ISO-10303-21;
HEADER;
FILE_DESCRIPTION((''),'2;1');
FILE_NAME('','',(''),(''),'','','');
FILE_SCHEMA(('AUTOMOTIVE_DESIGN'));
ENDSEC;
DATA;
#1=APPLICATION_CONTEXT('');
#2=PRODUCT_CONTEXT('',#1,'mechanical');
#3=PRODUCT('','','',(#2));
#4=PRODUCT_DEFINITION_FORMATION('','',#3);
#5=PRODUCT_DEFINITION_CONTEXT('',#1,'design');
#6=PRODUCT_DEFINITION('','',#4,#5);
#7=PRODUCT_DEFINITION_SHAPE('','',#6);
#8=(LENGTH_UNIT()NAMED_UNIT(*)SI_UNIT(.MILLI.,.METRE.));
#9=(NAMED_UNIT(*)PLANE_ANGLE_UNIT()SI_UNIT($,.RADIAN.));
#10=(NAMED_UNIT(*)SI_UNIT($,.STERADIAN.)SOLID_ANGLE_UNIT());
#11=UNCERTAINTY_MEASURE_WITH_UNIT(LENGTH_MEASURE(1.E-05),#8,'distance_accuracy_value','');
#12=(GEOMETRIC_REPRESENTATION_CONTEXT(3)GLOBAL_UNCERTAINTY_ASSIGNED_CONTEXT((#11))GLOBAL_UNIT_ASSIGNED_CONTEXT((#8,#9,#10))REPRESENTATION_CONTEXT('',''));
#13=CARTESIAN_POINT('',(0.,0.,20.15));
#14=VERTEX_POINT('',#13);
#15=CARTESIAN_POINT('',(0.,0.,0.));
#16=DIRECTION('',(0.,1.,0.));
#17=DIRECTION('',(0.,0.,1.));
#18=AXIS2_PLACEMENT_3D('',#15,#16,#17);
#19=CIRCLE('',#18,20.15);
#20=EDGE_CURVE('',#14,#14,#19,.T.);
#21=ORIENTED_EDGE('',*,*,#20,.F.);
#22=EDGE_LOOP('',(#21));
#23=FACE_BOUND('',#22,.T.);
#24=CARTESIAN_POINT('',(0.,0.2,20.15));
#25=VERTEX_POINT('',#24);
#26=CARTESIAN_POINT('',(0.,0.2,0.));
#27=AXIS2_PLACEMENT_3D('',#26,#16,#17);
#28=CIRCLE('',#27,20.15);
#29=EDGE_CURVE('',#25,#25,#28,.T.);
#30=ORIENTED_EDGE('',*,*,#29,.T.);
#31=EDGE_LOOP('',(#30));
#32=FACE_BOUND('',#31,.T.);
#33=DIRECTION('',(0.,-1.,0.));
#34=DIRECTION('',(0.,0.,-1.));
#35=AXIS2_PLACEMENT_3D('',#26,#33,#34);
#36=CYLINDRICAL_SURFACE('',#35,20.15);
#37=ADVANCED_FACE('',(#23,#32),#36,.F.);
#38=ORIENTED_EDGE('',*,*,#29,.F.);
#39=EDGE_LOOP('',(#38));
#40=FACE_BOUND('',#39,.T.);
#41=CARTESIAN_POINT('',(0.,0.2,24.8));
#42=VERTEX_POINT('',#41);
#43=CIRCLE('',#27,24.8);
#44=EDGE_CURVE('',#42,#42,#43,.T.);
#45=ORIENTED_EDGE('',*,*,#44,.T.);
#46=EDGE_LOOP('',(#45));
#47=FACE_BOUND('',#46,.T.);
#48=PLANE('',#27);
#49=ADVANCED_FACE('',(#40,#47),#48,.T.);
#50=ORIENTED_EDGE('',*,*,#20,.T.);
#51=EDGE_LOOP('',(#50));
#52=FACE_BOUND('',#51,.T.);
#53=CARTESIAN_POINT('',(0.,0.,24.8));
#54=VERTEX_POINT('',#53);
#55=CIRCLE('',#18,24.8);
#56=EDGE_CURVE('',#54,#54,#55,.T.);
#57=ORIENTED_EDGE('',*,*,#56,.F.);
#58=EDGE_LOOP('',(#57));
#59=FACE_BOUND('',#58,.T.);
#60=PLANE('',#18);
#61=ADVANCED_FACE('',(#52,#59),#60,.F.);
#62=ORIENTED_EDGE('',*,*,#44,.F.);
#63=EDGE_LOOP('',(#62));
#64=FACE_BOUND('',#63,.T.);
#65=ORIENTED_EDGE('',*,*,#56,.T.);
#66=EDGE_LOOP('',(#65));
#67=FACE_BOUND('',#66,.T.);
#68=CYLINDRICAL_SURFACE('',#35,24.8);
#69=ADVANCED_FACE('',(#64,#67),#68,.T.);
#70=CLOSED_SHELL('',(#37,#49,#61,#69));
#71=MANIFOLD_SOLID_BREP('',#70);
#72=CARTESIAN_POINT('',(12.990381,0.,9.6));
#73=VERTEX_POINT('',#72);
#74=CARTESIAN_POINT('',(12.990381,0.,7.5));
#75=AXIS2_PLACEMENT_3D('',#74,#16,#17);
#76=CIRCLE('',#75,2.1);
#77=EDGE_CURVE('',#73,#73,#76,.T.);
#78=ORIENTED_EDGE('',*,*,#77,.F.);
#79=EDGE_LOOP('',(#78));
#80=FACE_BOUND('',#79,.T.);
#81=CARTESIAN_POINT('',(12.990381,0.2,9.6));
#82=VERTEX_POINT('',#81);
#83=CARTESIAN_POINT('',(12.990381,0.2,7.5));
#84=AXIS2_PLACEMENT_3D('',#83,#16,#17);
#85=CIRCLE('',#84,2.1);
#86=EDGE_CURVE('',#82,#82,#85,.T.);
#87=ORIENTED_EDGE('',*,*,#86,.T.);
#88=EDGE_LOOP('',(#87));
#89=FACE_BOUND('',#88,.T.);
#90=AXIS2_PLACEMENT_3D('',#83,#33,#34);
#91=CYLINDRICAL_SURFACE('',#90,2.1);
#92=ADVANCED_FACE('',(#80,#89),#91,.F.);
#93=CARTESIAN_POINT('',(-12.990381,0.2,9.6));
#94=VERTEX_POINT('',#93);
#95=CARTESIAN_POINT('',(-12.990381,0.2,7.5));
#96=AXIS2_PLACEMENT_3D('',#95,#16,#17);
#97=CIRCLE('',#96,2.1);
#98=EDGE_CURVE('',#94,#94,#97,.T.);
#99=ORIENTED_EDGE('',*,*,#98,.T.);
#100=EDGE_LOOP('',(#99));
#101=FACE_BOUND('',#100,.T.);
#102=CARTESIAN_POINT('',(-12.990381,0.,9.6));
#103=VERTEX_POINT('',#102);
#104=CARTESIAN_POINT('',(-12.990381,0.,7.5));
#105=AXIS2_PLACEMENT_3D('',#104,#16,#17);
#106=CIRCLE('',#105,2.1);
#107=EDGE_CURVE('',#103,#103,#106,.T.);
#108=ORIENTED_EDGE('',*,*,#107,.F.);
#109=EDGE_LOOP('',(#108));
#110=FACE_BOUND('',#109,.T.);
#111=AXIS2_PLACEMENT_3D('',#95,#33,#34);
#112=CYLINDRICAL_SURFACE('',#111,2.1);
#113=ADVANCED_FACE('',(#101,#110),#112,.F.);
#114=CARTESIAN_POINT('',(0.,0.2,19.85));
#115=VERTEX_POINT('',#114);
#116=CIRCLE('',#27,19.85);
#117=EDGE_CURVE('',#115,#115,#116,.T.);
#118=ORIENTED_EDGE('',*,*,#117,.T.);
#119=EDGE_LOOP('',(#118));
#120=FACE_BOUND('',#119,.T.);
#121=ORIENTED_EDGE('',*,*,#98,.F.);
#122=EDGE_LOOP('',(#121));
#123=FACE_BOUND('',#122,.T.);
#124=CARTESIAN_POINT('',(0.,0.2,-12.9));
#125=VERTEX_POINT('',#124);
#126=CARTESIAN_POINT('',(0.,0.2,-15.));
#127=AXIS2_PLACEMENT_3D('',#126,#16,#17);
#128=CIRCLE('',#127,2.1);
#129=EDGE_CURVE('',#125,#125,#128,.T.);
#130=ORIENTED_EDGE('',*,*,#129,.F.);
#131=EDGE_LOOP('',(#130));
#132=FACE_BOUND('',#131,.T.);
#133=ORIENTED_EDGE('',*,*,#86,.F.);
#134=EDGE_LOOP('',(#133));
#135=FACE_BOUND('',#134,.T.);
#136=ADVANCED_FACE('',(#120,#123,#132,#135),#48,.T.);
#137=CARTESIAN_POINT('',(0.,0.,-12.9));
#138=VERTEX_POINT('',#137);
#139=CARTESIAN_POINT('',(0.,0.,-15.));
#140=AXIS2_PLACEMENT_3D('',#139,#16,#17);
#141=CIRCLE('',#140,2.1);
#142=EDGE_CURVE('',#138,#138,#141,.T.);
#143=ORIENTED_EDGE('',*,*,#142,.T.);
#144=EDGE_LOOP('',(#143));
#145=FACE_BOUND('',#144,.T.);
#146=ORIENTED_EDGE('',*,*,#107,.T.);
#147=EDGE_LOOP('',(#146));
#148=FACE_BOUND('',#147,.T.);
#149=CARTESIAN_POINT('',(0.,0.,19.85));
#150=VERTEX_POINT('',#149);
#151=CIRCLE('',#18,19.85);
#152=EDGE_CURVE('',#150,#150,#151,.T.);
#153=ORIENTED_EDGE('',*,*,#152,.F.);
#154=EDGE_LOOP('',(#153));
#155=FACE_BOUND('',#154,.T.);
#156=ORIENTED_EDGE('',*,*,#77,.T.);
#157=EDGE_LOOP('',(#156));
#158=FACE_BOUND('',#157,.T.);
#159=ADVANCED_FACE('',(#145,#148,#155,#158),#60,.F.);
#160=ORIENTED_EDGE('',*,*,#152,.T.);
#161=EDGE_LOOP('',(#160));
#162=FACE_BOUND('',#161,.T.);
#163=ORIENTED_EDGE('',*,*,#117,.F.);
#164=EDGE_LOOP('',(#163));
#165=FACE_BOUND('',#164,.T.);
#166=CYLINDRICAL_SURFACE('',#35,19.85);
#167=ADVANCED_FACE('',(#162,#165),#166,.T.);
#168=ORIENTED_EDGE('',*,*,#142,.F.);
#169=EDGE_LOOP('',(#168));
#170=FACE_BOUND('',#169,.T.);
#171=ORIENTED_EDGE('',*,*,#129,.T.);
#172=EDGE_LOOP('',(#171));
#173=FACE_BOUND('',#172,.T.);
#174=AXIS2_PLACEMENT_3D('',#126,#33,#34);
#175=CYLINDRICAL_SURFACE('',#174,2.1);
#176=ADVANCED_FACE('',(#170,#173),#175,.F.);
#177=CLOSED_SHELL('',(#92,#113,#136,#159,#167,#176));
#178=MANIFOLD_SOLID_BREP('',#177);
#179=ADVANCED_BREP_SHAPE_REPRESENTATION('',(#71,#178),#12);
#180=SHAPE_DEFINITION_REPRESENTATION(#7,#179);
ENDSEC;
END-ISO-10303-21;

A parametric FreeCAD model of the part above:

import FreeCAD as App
import Part
import Sketcher
Q = App.Units.Quantity

doc = App.newDocument("Part")
params = doc.addObject("Spreadsheet::Sheet", "Params")
for row, (alias, value) in enumerate([
    ("sketch1_diameter", "49.6 mm"),
    ("sketch1_diameter2", "40.3 mm"),
    ("pad1_length", "0.2 mm"),
    ("sketch2_diameter", "39.7 mm"),
    ("sketch2_diameter2", "4.2 mm"),
    ("pad2_length", "0.2 mm"),
], start=1):
    params.set(f"A{row}", alias)
    params.set(f"B{row}", "=" + value)
    params.setAlias(f"B{row}", alias)

body = doc.addObject("PartDesign::Body", "Body")

# Sketch on XZ plane
sketch1 = doc.addObject("Sketcher::SketchObject", "Sketch")
body.addObject(sketch1)
sketch1.AttachmentSupport = (doc.XZ_Plane, [""])
sketch1.MapMode = "FlatFace"
sketch1.addGeometry(Part.Circle(App.Vector(0, 0, 0), App.Vector(0, 0, 1), 25), False)
sketch1.addGeometry(Part.Circle(App.Vector(0, 0, 0), App.Vector(0, 0, 1), 20), False)
sketch1.addConstraint(Sketcher.Constraint("Coincident", 0, 3, -1, 1))
sketch1.addConstraint(Sketcher.Constraint("Coincident", 1, 3, -1, 1))
sketch1.addConstraint(Sketcher.Constraint("Diameter", 0, Q("49.6 mm")))
sketch1.addConstraint(Sketcher.Constraint("Diameter", 1, Q("40.3 mm")))
sketch1.setExpression("Constraints[2]", "Params.sketch1_diameter")
sketch1.setExpression("Constraints[3]", "Params.sketch1_diameter2")
pad1 = doc.addObject("PartDesign::Pad", "Pad")
body.addObject(pad1)
pad1.Profile = sketch1
pad1.setExpression("Length", "Params.pad1_length")
pad1.Reversed = True
body2 = doc.addObject("PartDesign::Body", "Body001")

# Sketch on XZ plane
sketch2 = doc.addObject("Sketcher::SketchObject", "Sketch001")
body2.addObject(sketch2)
sketch2.AttachmentSupport = (doc.getObject("XZ_Plane001"), [""])
sketch2.MapMode = "FlatFace"
sketch2.addGeometry(Part.Circle(App.Vector(0, 0, 0), App.Vector(0, 0, 1), 19.9), False)
sketch2.addGeometry(Part.Circle(App.Vector(0, -15, 0), App.Vector(0, 0, 1), 2.1), False)
sketch2.addGeometry(Part.Circle(App.Vector(-13, 7.5, 0), App.Vector(0, 0, 1), 2.1), False)
sketch2.addGeometry(Part.Circle(App.Vector(13, 7.5, 0), App.Vector(0, 0, 1), 2.1), False)
sketch2.addConstraint(Sketcher.Constraint("Coincident", 0, 3, -1, 1))
sketch2.addConstraint(Sketcher.Constraint("Equal", 1, 2))
sketch2.addConstraint(Sketcher.Constraint("Equal", 2, 3))
sketch2.addConstraint(Sketcher.Constraint("Symmetric", 2, 3, 3, 3, -2))
sketch2.addConstraint(Sketcher.Constraint("PointOnObject", 1, 3, -2))
sketch2.addConstraint(Sketcher.Constraint("Diameter", 0, Q("39.7 mm")))
sketch2.addConstraint(Sketcher.Constraint("Diameter", 1, Q("4.2 mm")))
sketch2.addConstraint(Sketcher.Constraint("DistanceY", 1, 3, -1, 1, Q("15 mm")))
sketch2.addConstraint(Sketcher.Constraint("DistanceY", -1, 1, 2, 3, Q("7.5 mm")))
sketch2.addConstraint(Sketcher.Constraint("DistanceX", 2, 3, -1, 1, Q("12.990381 mm")))
sketch2.setExpression("Constraints[5]", "Params.sketch2_diameter")
sketch2.setExpression("Constraints[6]", "Params.sketch2_diameter2")
pad2 = doc.addObject("PartDesign::Pad", "Pad001")
body2.addObject(pad2)
pad2.Profile = sketch2
pad2.setExpression("Length", "Params.pad2_length")
pad2.Reversed = True

doc.recompute()
